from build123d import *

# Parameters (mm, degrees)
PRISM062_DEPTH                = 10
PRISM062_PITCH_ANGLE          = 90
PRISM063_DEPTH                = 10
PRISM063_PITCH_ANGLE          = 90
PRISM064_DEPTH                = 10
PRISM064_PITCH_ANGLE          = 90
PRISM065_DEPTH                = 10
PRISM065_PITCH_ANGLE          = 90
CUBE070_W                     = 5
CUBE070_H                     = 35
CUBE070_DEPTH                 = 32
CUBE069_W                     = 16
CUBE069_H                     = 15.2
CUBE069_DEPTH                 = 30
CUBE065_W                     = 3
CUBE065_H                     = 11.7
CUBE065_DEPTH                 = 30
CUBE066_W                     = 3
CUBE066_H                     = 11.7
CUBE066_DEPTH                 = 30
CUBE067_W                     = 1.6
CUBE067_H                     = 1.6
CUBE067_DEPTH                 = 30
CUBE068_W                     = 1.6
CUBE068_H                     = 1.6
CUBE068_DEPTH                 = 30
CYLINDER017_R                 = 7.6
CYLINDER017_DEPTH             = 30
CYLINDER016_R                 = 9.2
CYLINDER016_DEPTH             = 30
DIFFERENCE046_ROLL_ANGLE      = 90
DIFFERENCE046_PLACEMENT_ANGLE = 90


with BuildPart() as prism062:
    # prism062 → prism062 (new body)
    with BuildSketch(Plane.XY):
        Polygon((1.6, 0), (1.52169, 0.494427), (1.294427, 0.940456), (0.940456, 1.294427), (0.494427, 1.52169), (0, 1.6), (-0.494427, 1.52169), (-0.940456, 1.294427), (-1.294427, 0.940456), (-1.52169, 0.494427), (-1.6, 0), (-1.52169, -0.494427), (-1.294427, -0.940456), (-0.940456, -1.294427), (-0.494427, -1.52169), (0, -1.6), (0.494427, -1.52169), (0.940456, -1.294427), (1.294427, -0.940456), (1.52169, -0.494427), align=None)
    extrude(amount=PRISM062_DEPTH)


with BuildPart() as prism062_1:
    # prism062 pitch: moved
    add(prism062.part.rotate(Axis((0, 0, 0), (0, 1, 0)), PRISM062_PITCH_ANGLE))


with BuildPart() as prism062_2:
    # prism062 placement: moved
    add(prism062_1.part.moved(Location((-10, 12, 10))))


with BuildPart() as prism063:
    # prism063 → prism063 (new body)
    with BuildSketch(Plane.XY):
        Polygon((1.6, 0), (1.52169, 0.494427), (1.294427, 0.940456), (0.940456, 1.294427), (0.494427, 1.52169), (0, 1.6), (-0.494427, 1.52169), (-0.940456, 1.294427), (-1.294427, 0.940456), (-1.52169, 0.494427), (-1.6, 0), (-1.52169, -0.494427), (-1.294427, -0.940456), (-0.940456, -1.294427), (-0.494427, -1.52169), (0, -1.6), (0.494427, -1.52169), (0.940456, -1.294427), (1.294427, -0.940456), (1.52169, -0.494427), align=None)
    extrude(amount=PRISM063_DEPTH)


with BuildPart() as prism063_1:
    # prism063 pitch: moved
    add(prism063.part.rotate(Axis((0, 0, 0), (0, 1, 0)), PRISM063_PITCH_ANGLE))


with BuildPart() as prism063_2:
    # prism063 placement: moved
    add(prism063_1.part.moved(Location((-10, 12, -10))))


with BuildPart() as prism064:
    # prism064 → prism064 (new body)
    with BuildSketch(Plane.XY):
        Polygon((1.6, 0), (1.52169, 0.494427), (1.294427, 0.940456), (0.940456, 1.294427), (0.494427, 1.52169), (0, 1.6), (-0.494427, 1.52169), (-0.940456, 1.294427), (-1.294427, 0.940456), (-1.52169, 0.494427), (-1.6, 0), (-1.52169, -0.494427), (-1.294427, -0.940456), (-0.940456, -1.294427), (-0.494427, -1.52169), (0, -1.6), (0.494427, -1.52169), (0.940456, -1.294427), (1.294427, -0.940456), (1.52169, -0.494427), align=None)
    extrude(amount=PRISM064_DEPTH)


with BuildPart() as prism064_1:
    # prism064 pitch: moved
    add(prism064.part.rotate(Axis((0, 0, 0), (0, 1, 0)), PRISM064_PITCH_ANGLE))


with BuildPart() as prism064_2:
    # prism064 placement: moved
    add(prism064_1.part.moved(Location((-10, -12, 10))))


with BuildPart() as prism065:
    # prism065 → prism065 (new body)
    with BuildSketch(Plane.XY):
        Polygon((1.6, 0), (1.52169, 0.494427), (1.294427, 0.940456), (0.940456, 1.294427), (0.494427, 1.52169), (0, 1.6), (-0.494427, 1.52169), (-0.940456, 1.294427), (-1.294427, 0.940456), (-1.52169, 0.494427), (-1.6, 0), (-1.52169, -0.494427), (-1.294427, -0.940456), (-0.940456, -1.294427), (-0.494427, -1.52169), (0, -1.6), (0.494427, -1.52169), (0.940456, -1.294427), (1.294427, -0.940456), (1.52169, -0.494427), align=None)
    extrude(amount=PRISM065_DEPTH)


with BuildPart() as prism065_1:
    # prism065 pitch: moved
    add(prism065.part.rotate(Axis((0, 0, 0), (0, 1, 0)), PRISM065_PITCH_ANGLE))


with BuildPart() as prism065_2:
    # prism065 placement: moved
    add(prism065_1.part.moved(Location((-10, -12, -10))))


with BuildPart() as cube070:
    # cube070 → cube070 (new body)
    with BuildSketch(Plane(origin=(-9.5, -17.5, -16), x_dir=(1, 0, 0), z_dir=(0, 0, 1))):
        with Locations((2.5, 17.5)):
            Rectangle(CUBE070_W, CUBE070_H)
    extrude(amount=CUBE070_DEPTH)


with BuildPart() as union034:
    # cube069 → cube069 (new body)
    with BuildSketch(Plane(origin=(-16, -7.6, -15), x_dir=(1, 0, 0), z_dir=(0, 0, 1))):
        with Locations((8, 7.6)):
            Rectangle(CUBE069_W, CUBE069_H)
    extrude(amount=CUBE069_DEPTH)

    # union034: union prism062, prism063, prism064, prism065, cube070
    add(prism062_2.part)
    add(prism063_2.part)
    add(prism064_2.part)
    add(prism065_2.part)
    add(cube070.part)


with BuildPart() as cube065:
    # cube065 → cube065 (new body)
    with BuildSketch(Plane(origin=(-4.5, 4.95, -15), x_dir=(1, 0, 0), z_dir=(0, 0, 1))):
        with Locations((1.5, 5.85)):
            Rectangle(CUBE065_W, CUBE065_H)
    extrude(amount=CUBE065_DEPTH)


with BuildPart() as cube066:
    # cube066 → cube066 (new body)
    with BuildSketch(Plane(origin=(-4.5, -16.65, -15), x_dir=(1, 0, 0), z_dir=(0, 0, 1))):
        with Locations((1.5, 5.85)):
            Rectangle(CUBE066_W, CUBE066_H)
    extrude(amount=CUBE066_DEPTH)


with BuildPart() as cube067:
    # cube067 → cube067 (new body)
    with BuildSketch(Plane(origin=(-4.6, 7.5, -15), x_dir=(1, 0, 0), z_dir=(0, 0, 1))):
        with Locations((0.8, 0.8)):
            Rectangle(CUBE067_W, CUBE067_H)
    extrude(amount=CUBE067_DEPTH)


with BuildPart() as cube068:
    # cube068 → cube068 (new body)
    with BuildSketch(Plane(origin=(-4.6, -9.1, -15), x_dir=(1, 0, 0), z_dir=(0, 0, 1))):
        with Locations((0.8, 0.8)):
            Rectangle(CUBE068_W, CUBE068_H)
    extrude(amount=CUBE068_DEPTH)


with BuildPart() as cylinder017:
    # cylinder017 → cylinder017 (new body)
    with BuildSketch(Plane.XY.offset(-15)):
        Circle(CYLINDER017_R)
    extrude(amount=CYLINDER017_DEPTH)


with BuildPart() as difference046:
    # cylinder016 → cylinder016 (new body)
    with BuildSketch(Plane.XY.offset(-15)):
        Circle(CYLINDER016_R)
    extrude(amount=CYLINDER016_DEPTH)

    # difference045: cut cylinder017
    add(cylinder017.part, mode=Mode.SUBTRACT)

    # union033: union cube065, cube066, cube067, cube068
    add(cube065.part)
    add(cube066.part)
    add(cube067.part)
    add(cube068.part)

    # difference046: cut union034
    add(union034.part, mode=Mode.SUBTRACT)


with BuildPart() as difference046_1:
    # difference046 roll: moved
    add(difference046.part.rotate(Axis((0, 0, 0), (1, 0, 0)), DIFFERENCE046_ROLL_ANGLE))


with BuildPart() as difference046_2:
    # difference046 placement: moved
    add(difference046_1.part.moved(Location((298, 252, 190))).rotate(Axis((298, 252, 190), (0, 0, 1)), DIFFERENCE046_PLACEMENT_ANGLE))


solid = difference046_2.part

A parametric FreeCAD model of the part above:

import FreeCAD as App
import Part
import Sketcher
Q = App.Units.Quantity

doc = App.newDocument("Part")
params = doc.addObject("Spreadsheet::Sheet", "Params")
for row, (alias, value) in enumerate([
    ("pad1_length", "10 mm"),
    ("pad2_length", "10 mm"),
    ("pad3_length", "10 mm"),
    ("pad4_length", "10 mm"),
    ("sketch5_width", "5 mm"),
    ("sketch5_height", "35 mm"),
    ("pad5_length", "32 mm"),
    ("sketch6_width", "16 mm"),
    ("sketch6_height", "15.2 mm"),
    ("pad6_length", "30 mm"),
    ("sketch7_width", "3 mm"),
    ("sketch7_height", "11.7 mm"),
    ("pad7_length", "30 mm"),
    ("sketch8_width", "3 mm"),
    ("sketch8_height", "11.7 mm"),
    ("pad8_length", "30 mm"),
    ("sketch9_width", "1.6 mm"),
    ("pad9_length", "30 mm"),
    ("sketch10_width", "1.6 mm"),
    ("pad10_length", "30 mm"),
    ("sketch11_diameter", "15.2 mm"),
    ("pad11_length", "30 mm"),
    ("sketch12_diameter", "18.4 mm"),
    ("pad12_length", "30 mm"),
], start=1):
    params.set(f"A{row}", alias)
    params.set(f"B{row}", "=" + value)
    params.setAlias(f"B{row}", alias)

body = doc.addObject("PartDesign::Body", "Body")

# Sketch on XY plane
sketch1 = body.newObject("Sketcher::SketchObject", "Sketch")
sketch1.AttachmentSupport = (doc.getObject("XY_Plane"), [""])
sketch1.MapMode = "FlatFace"
sketch1.addGeometry(Part.LineSegment(App.Vector(1.6, 0, 0), App.Vector(1.5, 0.5, 0)), False)
sketch1.addGeometry(Part.LineSegment(App.Vector(1.5, 0.5, 0), App.Vector(1.3, 0.9, 0)), False)
sketch1.addGeometry(Part.LineSegment(App.Vector(1.3, 0.9, 0), App.Vector(0.9, 1.3, 0)), False)
sketch1.addGeometry(Part.LineSegment(App.Vector(0.9, 1.3, 0), App.Vector(0.5, 1.5, 0)), False)
sketch1.addGeometry(Part.LineSegment(App.Vector(0.5, 1.5, 0), App.Vector(0, 1.6, 0)), False)
sketch1.addGeometry(Part.LineSegment(App.Vector(0, 1.6, 0), App.Vector(-0.5, 1.5, 0)), False)
sketch1.addGeometry(Part.LineSegment(App.Vector(-0.5, 1.5, 0), App.Vector(-0.9, 1.3, 0)), False)
sketch1.addGeometry(Part.LineSegment(App.Vector(-0.9, 1.3, 0), App.Vector(-1.3, 0.9, 0)), False)
sketch1.addGeometry(Part.LineSegment(App.Vector(-1.3, 0.9, 0), App.Vector(-1.5, 0.5, 0)), False)
sketch1.addGeometry(Part.LineSegment(App.Vector(-1.5, 0.5, 0), App.Vector(-1.6, 0, 0)), False)
sketch1.addGeometry(Part.LineSegment(App.Vector(-1.6, 0, 0), App.Vector(-1.5, -0.5, 0)), False)
sketch1.addGeometry(Part.LineSegment(App.Vector(-1.5, -0.5, 0), App.Vector(-1.3, -0.9, 0)), False)
sketch1.addGeometry(Part.LineSegment(App.Vector(-1.3, -0.9, 0), App.Vector(-0.9, -1.3, 0)), False)
sketch1.addGeometry(Part.LineSegment(App.Vector(-0.9, -1.3, 0), App.Vector(-0.5, -1.5, 0)), False)
sketch1.addGeometry(Part.LineSegment(App.Vector(-0.5, -1.5, 0), App.Vector(0, -1.6, 0)), False)
sketch1.addGeometry(Part.LineSegment(App.Vector(0, -1.6, 0), App.Vector(0.5, -1.5, 0)), False)
sketch1.addGeometry(Part.LineSegment(App.Vector(0.5, -1.5, 0), App.Vector(0.9, -1.3, 0)), False)
sketch1.addGeometry(Part.LineSegment(App.Vector(0.9, -1.3, 0), App.Vector(1.3, -0.9, 0)), False)
sketch1.addGeometry(Part.LineSegment(App.Vector(1.3, -0.9, 0), App.Vector(1.5, -0.5, 0)), False)
sketch1.addGeometry(Part.LineSegment(App.Vector(1.5, -0.5, 0), App.Vector(1.6, 0, 0)), False)
sketch1.addConstraint(Sketcher.Constraint("Coincident", 0, 2, 1, 1))
sketch1.addConstraint(Sketcher.Constraint("Coincident", 1, 2, 2, 1))
sketch1.addConstraint(Sketcher.Constraint("Coincident", 2, 2, 3, 1))
sketch1.addConstraint(Sketcher.Constraint("Coincident", 3, 2, 4, 1))
sketch1.addConstraint(Sketcher.Constraint("Coincident", 4, 2, 5, 1))
sketch1.addConstraint(Sketcher.Constraint("Coincident", 5, 2, 6, 1))
sketch1.addConstraint(Sketcher.Constraint("Coincident", 6, 2, 7, 1))
sketch1.addConstraint(Sketcher.Constraint("Coincident", 7, 2, 8, 1))
sketch1.addConstraint(Sketcher.Constraint("Coincident", 8, 2, 9, 1))
sketch1.addConstraint(Sketcher.Constraint("Coincident", 9, 2, 10, 1))
sketch1.addConstraint(Sketcher.Constraint("Coincident", 10, 2, 11, 1))
sketch1.addConstraint(Sketcher.Constraint("Coincident", 11, 2, 12, 1))
sketch1.addConstraint(Sketcher.Constraint("Coincident", 12, 2, 13, 1))
sketch1.addConstraint(Sketcher.Constraint("Coincident", 13, 2, 14, 1))
sketch1.addConstraint(Sketcher.Constraint("Coincident", 14, 2, 15, 1))
sketch1.addConstraint(Sketcher.Constraint("Coincident", 15, 2, 16, 1))
sketch1.addConstraint(Sketcher.Constraint("Coincident", 16, 2, 17, 1))
sketch1.addConstraint(Sketcher.Constraint("Coincident", 17, 2, 18, 1))
sketch1.addConstraint(Sketcher.Constraint("Coincident", 18, 2, 19, 1))
sketch1.addConstraint(Sketcher.Constraint("Coincident", 19, 2, 0, 1))
sketch1.addConstraint(Sketcher.Constraint("Symmetric", 0, 2, 10, 2, -1, 1))
sketch1.addConstraint(Sketcher.Constraint("Symmetric", 1, 2, 11, 2, -1, 1))
sketch1.addConstraint(Sketcher.Constraint("Symmetric", 2, 2, 12, 2, -1, 1))
sketch1.addConstraint(Sketcher.Constraint("Symmetric", 3, 2, 13, 2, -1, 1))
sketch1.addConstraint(Sketcher.Constraint("Symmetric", 4, 2, 14, 2, -1, 1))
sketch1.addConstraint(Sketcher.Constraint("Symmetric", 5, 2, 15, 2, -1, 1))
sketch1.addConstraint(Sketcher.Constraint("Symmetric", 6, 2, 16, 2, -1, 1))
sketch1.addConstraint(Sketcher.Constraint("Symmetric", 7, 2, 17, 2, -1, 1))
sketch1.addConstraint(Sketcher.Constraint("Symmetric", 8, 2, 18, 2, -1, 1))
sketch1.addConstraint(Sketcher.Constraint("Symmetric", 9, 2, 19, 2, -1, 1))
sketch1.addConstraint(Sketcher.Constraint("Symmetric", 3, 2, 5, 2, -2))
sketch1.addConstraint(Sketcher.Constraint("Symmetric", 2, 2, 6, 2, -2))
sketch1.addConstraint(Sketcher.Constraint("Symmetric", 1, 2, 7, 2, -2))
sketch1.addConstraint(Sketcher.Constraint("Symmetric", 0, 2, 8, 2, -2))
sketch1.addConstraint(Sketcher.Constraint("PointOnObject", 4, 2, -2))
sketch1.addConstraint(Sketcher.Constraint("PointOnObject", 9, 2, -1))
sketch1.addConstraint(Sketcher.Constraint("Perpendicular", 0, 5))
sketch1.addConstraint(Sketcher.Constraint("Perpendicular", 1, 6))
sketch1.addConstraint(Sketcher.Constraint("Perpendicular", 2, 7))
sketch1.addConstraint(Sketcher.Constraint("Equal", 0, 1))
sketch1.addConstraint(Sketcher.Constraint("Equal", 1, 2))
sketch1.addConstraint(Sketcher.Constraint("Equal", 2, 3))
sketch1.addConstraint(Sketcher.Constraint("Equal", 3, 4))
sketch1.addConstraint(Sketcher.Constraint("Angle", 1, Q("116.999987 deg")))
sketch1.addConstraint(Sketcher.Constraint("DistanceY", -1, 1, 4, 2, Q("1.6 mm")))
sketch1.addConstraint(Sketcher.Constraint("DistanceY", 0, 2, 2, 2, Q("0.8 mm")))
pad1 = body.newObject("PartDesign::Pad", "Pad")
pad1.Profile = sketch1
pad1.setExpression("Length", "Params.pad1_length")
body2 = doc.addObject("PartDesign::Body", "Body001")
doc.recompute()

body.Placement = App.Placement(App.Vector(0, 0, 0), App.Rotation(App.Vector(0, 1, 0), 90))
boolean = body2.newObject("PartDesign::Boolean", "Boolean")
boolean.Type = "Fuse"
boolean.addObjects([body])
body3 = doc.addObject("PartDesign::Body", "Body002")
doc.recompute()

body2.Placement = App.Placement(App.Vector(-10, 12, 10), App.Rotation(App.Vector(0, 0, 1), 0))
boolean2 = body3.newObject("PartDesign::Boolean", "Boolean001")
boolean2.Type = "Fuse"
boolean2.addObjects([body2])
body4 = doc.addObject("PartDesign::Body", "Body003")

# Sketch on XY plane
sketch2 = body4.newObject("Sketcher::SketchObject", "Sketch001")
sketch2.AttachmentSupport = (doc.getObject("XY_Plane003"), [""])
sketch2.MapMode = "FlatFace"
sketch2.addGeometry(Part.LineSegment(App.Vector(1.6, 0, 0), App.Vector(1.5, 0.5, 0)), False)
sketch2.addGeometry(Part.LineSegment(App.Vector(1.5, 0.5, 0), App.Vector(1.3, 0.9, 0)), False)
sketch2.addGeometry(Part.LineSegment(App.Vector(1.3, 0.9, 0), App.Vector(0.9, 1.3, 0)), False)
sketch2.addGeometry(Part.LineSegment(App.Vector(0.9, 1.3, 0), App.Vector(0.5, 1.5, 0)), False)
sketch2.addGeometry(Part.LineSegment(App.Vector(0.5, 1.5, 0), App.Vector(0, 1.6, 0)), False)
sketch2.addGeometry(Part.LineSegment(App.Vector(0, 1.6, 0), App.Vector(-0.5, 1.5, 0)), False)
sketch2.addGeometry(Part.LineSegment(App.Vector(-0.5, 1.5, 0), App.Vector(-0.9, 1.3, 0)), False)
sketch2.addGeometry(Part.LineSegment(App.Vector(-0.9, 1.3, 0), App.Vector(-1.3, 0.9, 0)), False)
sketch2.addGeometry(Part.LineSegment(App.Vector(-1.3, 0.9, 0), App.Vector(-1.5, 0.5, 0)), False)
sketch2.addGeometry(Part.LineSegment(App.Vector(-1.5, 0.5, 0), App.Vector(-1.6, 0, 0)), False)
sketch2.addGeometry(Part.LineSegment(App.Vector(-1.6, 0, 0), App.Vector(-1.5, -0.5, 0)), False)
sketch2.addGeometry(Part.LineSegment(App.Vector(-1.5, -0.5, 0), App.Vector(-1.3, -0.9, 0)), False)
sketch2.addGeometry(Part.LineSegment(App.Vector(-1.3, -0.9, 0), App.Vector(-0.9, -1.3, 0)), False)
sketch2.addGeometry(Part.LineSegment(App.Vector(-0.9, -1.3, 0), App.Vector(-0.5, -1.5, 0)), False)
sketch2.addGeometry(Part.LineSegment(App.Vector(-0.5, -1.5, 0), App.Vector(0, -1.6, 0)), False)
sketch2.addGeometry(Part.LineSegment(App.Vector(0, -1.6, 0), App.Vector(0.5, -1.5, 0)), False)
sketch2.addGeometry(Part.LineSegment(App.Vector(0.5, -1.5, 0), App.Vector(0.9, -1.3, 0)), False)
sketch2.addGeometry(Part.LineSegment(App.Vector(0.9, -1.3, 0), App.Vector(1.3, -0.9, 0)), False)
sketch2.addGeometry(Part.LineSegment(App.Vector(1.3, -0.9, 0), App.Vector(1.5, -0.5, 0)), False)
sketch2.addGeometry(Part.LineSegment(App.Vector(1.5, -0.5, 0), App.Vector(1.6, 0, 0)), False)
sketch2.addConstraint(Sketcher.Constraint("Coincident", 0, 2, 1, 1))
sketch2.addConstraint(Sketcher.Constraint("Coincident", 1, 2, 2, 1))
sketch2.addConstraint(Sketcher.Constraint("Coincident", 2, 2, 3, 1))
sketch2.addConstraint(Sketcher.Constraint("Coincident", 3, 2, 4, 1))
sketch2.addConstraint(Sketcher.Constraint("Coincident", 4, 2, 5, 1))
sketch2.addConstraint(Sketcher.Constraint("Coincident", 5, 2, 6, 1))
sketch2.addConstraint(Sketcher.Constraint("Coincident", 6, 2, 7, 1))
sketch2.addConstraint(Sketcher.Constraint("Coincident", 7, 2, 8, 1))
sketch2.addConstraint(Sketcher.Constraint("Coincident", 8, 2, 9, 1))
sketch2.addConstraint(Sketcher.Constraint("Coincident", 9, 2, 10, 1))
sketch2.addConstraint(Sketcher.Constraint("Coincident", 10, 2, 11, 1))
sketch2.addConstraint(Sketcher.Constraint("Coincident", 11, 2, 12, 1))
sketch2.addConstraint(Sketcher.Constraint("Coincident", 12, 2, 13, 1))
sketch2.addConstraint(Sketcher.Constraint("Coincident", 13, 2, 14, 1))
sketch2.addConstraint(Sketcher.Constraint("Coincident", 14, 2, 15, 1))
sketch2.addConstraint(Sketcher.Constraint("Coincident", 15, 2, 16, 1))
sketch2.addConstraint(Sketcher.Constraint("Coincident", 16, 2, 17, 1))
sketch2.addConstraint(Sketcher.Constraint("Coincident", 17, 2, 18, 1))
sketch2.addConstraint(Sketcher.Constraint("Coincident", 18, 2, 19, 1))
sketch2.addConstraint(Sketcher.Constraint("Coincident", 19, 2, 0, 1))
sketch2.addConstraint(Sketcher.Constraint("Symmetric", 0, 2, 10, 2, -1, 1))
sketch2.addConstraint(Sketcher.Constraint("Symmetric", 1, 2, 11, 2, -1, 1))
sketch2.addConstraint(Sketcher.Constraint("Symmetric", 2, 2, 12, 2, -1, 1))
sketch2.addConstraint(Sketcher.Constraint("Symmetric", 3, 2, 13, 2, -1, 1))
sketch2.addConstraint(Sketcher.Constraint("Symmetric", 4, 2, 14, 2, -1, 1))
sketch2.addConstraint(Sketcher.Constraint("Symmetric", 5, 2, 15, 2, -1, 1))
sketch2.addConstraint(Sketcher.Constraint("Symmetric", 6, 2, 16, 2, -1, 1))
sketch2.addConstraint(Sketcher.Constraint("Symmetric", 7, 2, 17, 2, -1, 1))
sketch2.addConstraint(Sketcher.Constraint("Symmetric", 8, 2, 18, 2, -1, 1))
sketch2.addConstraint(Sketcher.Constraint("Symmetric", 9, 2, 19, 2, -1, 1))
sketch2.addConstraint(Sketcher.Constraint("Symmetric", 3, 2, 5, 2, -2))
sketch2.addConstraint(Sketcher.Constraint("Symmetric", 2, 2, 6, 2, -2))
sketch2.addConstraint(Sketcher.Constraint("Symmetric", 1, 2, 7, 2, -2))
sketch2.addConstraint(Sketcher.Constraint("Symmetric", 0, 2, 8, 2, -2))
sketch2.addConstraint(Sketcher.Constraint("PointOnObject", 4, 2, -2))
sketch2.addConstraint(Sketcher.Constraint("PointOnObject", 9, 2, -1))
sketch2.addConstraint(Sketcher.Constraint("Perpendicular", 0, 5))
sketch2.addConstraint(Sketcher.Constraint("Perpendicular", 1, 6))
sketch2.addConstraint(Sketcher.Constraint("Perpendicular", 2, 7))
sketch2.addConstraint(Sketcher.Constraint("Equal", 0, 1))
sketch2.addConstraint(Sketcher.Constraint("Equal", 1, 2))
sketch2.addConstraint(Sketcher.Constraint("Equal", 2, 3))
sketch2.addConstraint(Sketcher.Constraint("Equal", 3, 4))
sketch2.addConstraint(Sketcher.Constraint("Angle", 1, Q("116.999987 deg")))
sketch2.addConstraint(Sketcher.Constraint("DistanceY", -1, 1, 4, 2, Q("1.6 mm")))
sketch2.addConstraint(Sketcher.Constraint("DistanceY", 0, 2, 2, 2, Q("0.8 mm")))
pad2 = body4.newObject("PartDesign::Pad", "Pad001")
pad2.Profile = sketch2
pad2.setExpression("Length", "Params.pad2_length")
body5 = doc.addObject("PartDesign::Body", "Body004")
doc.recompute()

body4.Placement = App.Placement(App.Vector(0, 0, 0), App.Rotation(App.Vector(0, 1, 0), 90))
boolean3 = body5.newObject("PartDesign::Boolean", "Boolean002")
boolean3.Type = "Fuse"
boolean3.addObjects([body4])
body6 = doc.addObject("PartDesign::Body", "Body005")
doc.recompute()

body5.Placement = App.Placement(App.Vector(-10, 12, -10), App.Rotation(App.Vector(0, 0, 1), 0))
boolean4 = body6.newObject("PartDesign::Boolean", "Boolean003")
boolean4.Type = "Fuse"
boolean4.addObjects([body5])
body7 = doc.addObject("PartDesign::Body", "Body006")

# Sketch on XY plane
sketch3 = body7.newObject("Sketcher::SketchObject", "Sketch002")
sketch3.AttachmentSupport = (doc.getObject("XY_Plane006"), [""])
sketch3.MapMode = "FlatFace"
sketch3.addGeometry(Part.LineSegment(App.Vector(1.6, 0, 0), App.Vector(1.5, 0.5, 0)), False)
sketch3.addGeometry(Part.LineSegment(App.Vector(1.5, 0.5, 0), App.Vector(1.3, 0.9, 0)), False)
sketch3.addGeometry(Part.LineSegment(App.Vector(1.3, 0.9, 0), App.Vector(0.9, 1.3, 0)), False)
sketch3.addGeometry(Part.LineSegment(App.Vector(0.9, 1.3, 0), App.Vector(0.5, 1.5, 0)), False)
sketch3.addGeometry(Part.LineSegment(App.Vector(0.5, 1.5, 0), App.Vector(0, 1.6, 0)), False)
sketch3.addGeometry(Part.LineSegment(App.Vector(0, 1.6, 0), App.Vector(-0.5, 1.5, 0)), False)
sketch3.addGeometry(Part.LineSegment(App.Vector(-0.5, 1.5, 0), App.Vector(-0.9, 1.3, 0)), False)
sketch3.addGeometry(Part.LineSegment(App.Vector(-0.9, 1.3, 0), App.Vector(-1.3, 0.9, 0)), False)
sketch3.addGeometry(Part.LineSegment(App.Vector(-1.3, 0.9, 0), App.Vector(-1.5, 0.5, 0)), False)
sketch3.addGeometry(Part.LineSegment(App.Vector(-1.5, 0.5, 0), App.Vector(-1.6, 0, 0)), False)
sketch3.addGeometry(Part.LineSegment(App.Vector(-1.6, 0, 0), App.Vector(-1.5, -0.5, 0)), False)
sketch3.addGeometry(Part.LineSegment(App.Vector(-1.5, -0.5, 0), App.Vector(-1.3, -0.9, 0)), False)
sketch3.addGeometry(Part.LineSegment(App.Vector(-1.3, -0.9, 0), App.Vector(-0.9, -1.3, 0)), False)
sketch3.addGeometry(Part.LineSegment(App.Vector(-0.9, -1.3, 0), App.Vector(-0.5, -1.5, 0)), False)
sketch3.addGeometry(Part.LineSegment(App.Vector(-0.5, -1.5, 0), App.Vector(0, -1.6, 0)), False)
sketch3.addGeometry(Part.LineSegment(App.Vector(0, -1.6, 0), App.Vector(0.5, -1.5, 0)), False)
sketch3.addGeometry(Part.LineSegment(App.Vector(0.5, -1.5, 0), App.Vector(0.9, -1.3, 0)), False)
sketch3.addGeometry(Part.LineSegment(App.Vector(0.9, -1.3, 0), App.Vector(1.3, -0.9, 0)), False)
sketch3.addGeometry(Part.LineSegment(App.Vector(1.3, -0.9, 0), App.Vector(1.5, -0.5, 0)), False)
sketch3.addGeometry(Part.LineSegment(App.Vector(1.5, -0.5, 0), App.Vector(1.6, 0, 0)), False)
sketch3.addConstraint(Sketcher.Constraint("Coincident", 0, 2, 1, 1))
sketch3.addConstraint(Sketcher.Constraint("Coincident", 1, 2, 2, 1))
sketch3.addConstraint(Sketcher.Constraint("Coincident", 2, 2, 3, 1))
sketch3.addConstraint(Sketcher.Constraint("Coincident", 3, 2, 4, 1))
sketch3.addConstraint(Sketcher.Constraint("Coincident", 4, 2, 5, 1))
sketch3.addConstraint(Sketcher.Constraint("Coincident", 5, 2, 6, 1))
sketch3.addConstraint(Sketcher.Constraint("Coincident", 6, 2, 7, 1))
sketch3.addConstraint(Sketcher.Constraint("Coincident", 7, 2, 8, 1))
sketch3.addConstraint(Sketcher.Constraint("Coincident", 8, 2, 9, 1))
sketch3.addConstraint(Sketcher.Constraint("Coincident", 9, 2, 10, 1))
sketch3.addConstraint(Sketcher.Constraint("Coincident", 10, 2, 11, 1))
sketch3.addConstraint(Sketcher.Constraint("Coincident", 11, 2, 12, 1))
sketch3.addConstraint(Sketcher.Constraint("Coincident", 12, 2, 13, 1))
sketch3.addConstraint(Sketcher.Constraint("Coincident", 13, 2, 14, 1))
sketch3.addConstraint(Sketcher.Constraint("Coincident", 14, 2, 15, 1))
sketch3.addConstraint(Sketcher.Constraint("Coincident", 15, 2, 16, 1))
sketch3.addConstraint(Sketcher.Constraint("Coincident", 16, 2, 17, 1))
sketch3.addConstraint(Sketcher.Constraint("Coincident", 17, 2, 18, 1))
sketch3.addConstraint(Sketcher.Constraint("Coincident", 18, 2, 19, 1))
sketch3.addConstraint(Sketcher.Constraint("Coincident", 19, 2, 0, 1))
sketch3.addConstraint(Sketcher.Constraint("Symmetric", 0, 2, 10, 2, -1, 1))
sketch3.addConstraint(Sketcher.Constraint("Symmetric", 1, 2, 11, 2, -1, 1))
sketch3.addConstraint(Sketcher.Constraint("Symmetric", 2, 2, 12, 2, -1, 1))
sketch3.addConstraint(Sketcher.Constraint("Symmetric", 3, 2, 13, 2, -1, 1))
sketch3.addConstraint(Sketcher.Constraint("Symmetric", 4, 2, 14, 2, -1, 1))
sketch3.addConstraint(Sketcher.Constraint("Symmetric", 5, 2, 15, 2, -1, 1))
sketch3.addConstraint(Sketcher.Constraint("Symmetric", 6, 2, 16, 2, -1, 1))
sketch3.addConstraint(Sketcher.Constraint("Symmetric", 7, 2, 17, 2, -1, 1))
sketch3.addConstraint(Sketcher.Constraint("Symmetric", 8, 2, 18, 2, -1, 1))
sketch3.addConstraint(Sketcher.Constraint("Symmetric", 9, 2, 19, 2, -1, 1))
sketch3.addConstraint(Sketcher.Constraint("Symmetric", 3, 2, 5, 2, -2))
sketch3.addConstraint(Sketcher.Constraint("Symmetric", 2, 2, 6, 2, -2))
sketch3.addConstraint(Sketcher.Constraint("Symmetric", 1, 2, 7, 2, -2))
sketch3.addConstraint(Sketcher.Constraint("Symmetric", 0, 2, 8, 2, -2))
sketch3.addConstraint(Sketcher.Constraint("PointOnObject", 4, 2, -2))
sketch3.addConstraint(Sketcher.Constraint("PointOnObject", 9, 2, -1))
sketch3.addConstraint(Sketcher.Constraint("Perpendicular", 0, 5))
sketch3.addConstraint(Sketcher.Constraint("Perpendicular", 1, 6))
sketch3.addConstraint(Sketcher.Constraint("Perpendicular", 2, 7))
sketch3.addConstraint(Sketcher.Constraint("Equal", 0, 1))
sketch3.addConstraint(Sketcher.Constraint("Equal", 1, 2))
sketch3.addConstraint(Sketcher.Constraint("Equal", 2, 3))
sketch3.addConstraint(Sketcher.Constraint("Equal", 3, 4))
sketch3.addConstraint(Sketcher.Constraint("Angle", 1, Q("116.999987 deg")))
sketch3.addConstraint(Sketcher.Constraint("DistanceY", -1, 1, 4, 2, Q("1.6 mm")))
sketch3.addConstraint(Sketcher.Constraint("DistanceY", 0, 2, 2, 2, Q("0.8 mm")))
pad3 = body7.newObject("PartDesign::Pad", "Pad002")
pad3.Profile = sketch3
pad3.setExpression("Length", "Params.pad3_length")
body8 = doc.addObject("PartDesign::Body", "Body007")
doc.recompute()

body7.Placement = App.Placement(App.Vector(0, 0, 0), App.Rotation(App.Vector(0, 1, 0), 90))
boolean5 = body8.newObject("PartDesign::Boolean", "Boolean004")
boolean5.Type = "Fuse"
boolean5.addObjects([body7])
body9 = doc.addObject("PartDesign::Body", "Body008")
doc.recompute()

body8.Placement = App.Placement(App.Vector(-10, -12, 10), App.Rotation(App.Vector(0, 0, 1), 0))
boolean6 = body9.newObject("PartDesign::Boolean", "Boolean005")
boolean6.Type = "Fuse"
boolean6.addObjects([body8])
body10 = doc.addObject("PartDesign::Body", "Body009")

# Sketch on XY plane
sketch4 = body10.newObject("Sketcher::SketchObject", "Sketch003")
sketch4.AttachmentSupport = (doc.getObject("XY_Plane009"), [""])
sketch4.MapMode = "FlatFace"
sketch4.addGeometry(Part.LineSegment(App.Vector(1.6, 0, 0), App.Vector(1.5, 0.5, 0)), False)
sketch4.addGeometry(Part.LineSegment(App.Vector(1.5, 0.5, 0), App.Vector(1.3, 0.9, 0)), False)
sketch4.addGeometry(Part.LineSegment(App.Vector(1.3, 0.9, 0), App.Vector(0.9, 1.3, 0)), False)
sketch4.addGeometry(Part.LineSegment(App.Vector(0.9, 1.3, 0), App.Vector(0.5, 1.5, 0)), False)
sketch4.addGeometry(Part.LineSegment(App.Vector(0.5, 1.5, 0), App.Vector(0, 1.6, 0)), False)
sketch4.addGeometry(Part.LineSegment(App.Vector(0, 1.6, 0), App.Vector(-0.5, 1.5, 0)), False)
sketch4.addGeometry(Part.LineSegment(App.Vector(-0.5, 1.5, 0), App.Vector(-0.9, 1.3, 0)), False)
sketch4.addGeometry(Part.LineSegment(App.Vector(-0.9, 1.3, 0), App.Vector(-1.3, 0.9, 0)), False)
sketch4.addGeometry(Part.LineSegment(App.Vector(-1.3, 0.9, 0), App.Vector(-1.5, 0.5, 0)), False)
sketch4.addGeometry(Part.LineSegment(App.Vector(-1.5, 0.5, 0), App.Vector(-1.6, 0, 0)), False)
sketch4.addGeometry(Part.LineSegment(App.Vector(-1.6, 0, 0), App.Vector(-1.5, -0.5, 0)), False)
sketch4.addGeometry(Part.LineSegment(App.Vector(-1.5, -0.5, 0), App.Vector(-1.3, -0.9, 0)), False)
sketch4.addGeometry(Part.LineSegment(App.Vector(-1.3, -0.9, 0), App.Vector(-0.9, -1.3, 0)), False)
sketch4.addGeometry(Part.LineSegment(App.Vector(-0.9, -1.3, 0), App.Vector(-0.5, -1.5, 0)), False)
sketch4.addGeometry(Part.LineSegment(App.Vector(-0.5, -1.5, 0), App.Vector(0, -1.6, 0)), False)
sketch4.addGeometry(Part.LineSegment(App.Vector(0, -1.6, 0), App.Vector(0.5, -1.5, 0)), False)
sketch4.addGeometry(Part.LineSegment(App.Vector(0.5, -1.5, 0), App.Vector(0.9, -1.3, 0)), False)
sketch4.addGeometry(Part.LineSegment(App.Vector(0.9, -1.3, 0), App.Vector(1.3, -0.9, 0)), False)
sketch4.addGeometry(Part.LineSegment(App.Vector(1.3, -0.9, 0), App.Vector(1.5, -0.5, 0)), False)
sketch4.addGeometry(Part.LineSegment(App.Vector(1.5, -0.5, 0), App.Vector(1.6, 0, 0)), False)
sketch4.addConstraint(Sketcher.Constraint("Coincident", 0, 2, 1, 1))
sketch4.addConstraint(Sketcher.Constraint("Coincident", 1, 2, 2, 1))
sketch4.addConstraint(Sketcher.Constraint("Coincident", 2, 2, 3, 1))
sketch4.addConstraint(Sketcher.Constraint("Coincident", 3, 2, 4, 1))
sketch4.addConstraint(Sketcher.Constraint("Coincident", 4, 2, 5, 1))
sketch4.addConstraint(Sketcher.Constraint("Coincident", 5, 2, 6, 1))
sketch4.addConstraint(Sketcher.Constraint("Coincident", 6, 2, 7, 1))
sketch4.addConstraint(Sketcher.Constraint("Coincident", 7, 2, 8, 1))
sketch4.addConstraint(Sketcher.Constraint("Coincident", 8, 2, 9, 1))
sketch4.addConstraint(Sketcher.Constraint("Coincident", 9, 2, 10, 1))
sketch4.addConstraint(Sketcher.Constraint("Coincident", 10, 2, 11, 1))
sketch4.addConstraint(Sketcher.Constraint("Coincident", 11, 2, 12, 1))
sketch4.addConstraint(Sketcher.Constraint("Coincident", 12, 2, 13, 1))
sketch4.addConstraint(Sketcher.Constraint("Coincident", 13, 2, 14, 1))
sketch4.addConstraint(Sketcher.Constraint("Coincident", 14, 2, 15, 1))
sketch4.addConstraint(Sketcher.Constraint("Coincident", 15, 2, 16, 1))
sketch4.addConstraint(Sketcher.Constraint("Coincident", 16, 2, 17, 1))
sketch4.addConstraint(Sketcher.Constraint("Coincident", 17, 2, 18, 1))
sketch4.addConstraint(Sketcher.Constraint("Coincident", 18, 2, 19, 1))
sketch4.addConstraint(Sketcher.Constraint("Coincident", 19, 2, 0, 1))
sketch4.addConstraint(Sketcher.Constraint("Symmetric", 0, 2, 10, 2, -1, 1))
sketch4.addConstraint(Sketcher.Constraint("Symmetric", 1, 2, 11, 2, -1, 1))
sketch4.addConstraint(Sketcher.Constraint("Symmetric", 2, 2, 12, 2, -1, 1))
sketch4.addConstraint(Sketcher.Constraint("Symmetric", 3, 2, 13, 2, -1, 1))
sketch4.addConstraint(Sketcher.Constraint("Symmetric", 4, 2, 14, 2, -1, 1))
sketch4.addConstraint(Sketcher.Constraint("Symmetric", 5, 2, 15, 2, -1, 1))
sketch4.addConstraint(Sketcher.Constraint("Symmetric", 6, 2, 16, 2, -1, 1))
sketch4.addConstraint(Sketcher.Constraint("Symmetric", 7, 2, 17, 2, -1, 1))
sketch4.addConstraint(Sketcher.Constraint("Symmetric", 8, 2, 18, 2, -1, 1))
sketch4.addConstraint(Sketcher.Constraint("Symmetric", 9, 2, 19, 2, -1, 1))
sketch4.addConstraint(Sketcher.Constraint("Symmetric", 3, 2, 5, 2, -2))
sketch4.addConstraint(Sketcher.Constraint("Symmetric", 2, 2, 6, 2, -2))
sketch4.addConstraint(Sketcher.Constraint("Symmetric", 1, 2, 7, 2, -2))
sketch4.addConstraint(Sketcher.Constraint("Symmetric", 0, 2, 8, 2, -2))
sketch4.addConstraint(Sketcher.Constraint("PointOnObject", 4, 2, -2))
sketch4.addConstraint(Sketcher.Constraint("PointOnObject", 9, 2, -1))
sketch4.addConstraint(Sketcher.Constraint("Perpendicular", 0, 5))
sketch4.addConstraint(Sketcher.Constraint("Perpendicular", 1, 6))
sketch4.addConstraint(Sketcher.Constraint("Perpendicular", 2, 7))
sketch4.addConstraint(Sketcher.Constraint("Equal", 0, 1))
sketch4.addConstraint(Sketcher.Constraint("Equal", 1, 2))
sketch4.addConstraint(Sketcher.Constraint("Equal", 2, 3))
sketch4.addConstraint(Sketcher.Constraint("Equal", 3, 4))
sketch4.addConstraint(Sketcher.Constraint("Angle", 1, Q("116.999987 deg")))
sketch4.addConstraint(Sketcher.Constraint("DistanceY", -1, 1, 4, 2, Q("1.6 mm")))
sketch4.addConstraint(Sketcher.Constraint("DistanceY", 0, 2, 2, 2, Q("0.8 mm")))
pad4 = body10.newObject("PartDesign::Pad", "Pad003")
pad4.Profile = sketch4
pad4.setExpression("Length", "Params.pad4_length")
body11 = doc.addObject("PartDesign::Body", "Body010")
doc.recompute()

body10.Placement = App.Placement(App.Vector(0, 0, 0), App.Rotation(App.Vector(0, 1, 0), 90))
boolean7 = body11.newObject("PartDesign::Boolean", "Boolean006")
boolean7.Type = "Fuse"
boolean7.addObjects([body10])
body12 = doc.addObject("PartDesign::Body", "Body011")
doc.recompute()

body11.Placement = App.Placement(App.Vector(-10, -12, -10), App.Rotation(App.Vector(0, 0, 1), 0))
boolean8 = body12.newObject("PartDesign::Boolean", "Boolean007")
boolean8.Type = "Fuse"
boolean8.addObjects([body11])
body13 = doc.addObject("PartDesign::Body", "Body012")

# Sketch on XY plane
sketch5 = body13.newObject("Sketcher::SketchObject", "Sketch004")
sketch5.AttachmentSupport = (doc.getObject("XY_Plane012"), [""])
sketch5.MapMode = "FlatFace"
sketch5.AttachmentOffset = App.Placement(App.Vector(0, 0, -16), App.Rotation())
sketch5.addGeometry(Part.LineSegment(App.Vector(-10, 18, 0), App.Vector(-10, -18, 0)), False)
sketch5.addGeometry(Part.LineSegment(App.Vector(-10, -18, 0), App.Vector(-4, -18, 0)), False)
sketch5.addGeometry(Part.LineSegment(App.Vector(-4, -18, 0), App.Vector(-4, 18, 0)), False)
sketch5.addGeometry(Part.LineSegment(App.Vector(-4, 18, 0), App.Vector(-10, 18, 0)), False)
sketch5.addConstraint(Sketcher.Constraint("Coincident", 0, 2, 1, 1))
sketch5.addConstraint(Sketcher.Constraint("Coincident", 1, 2, 2, 1))
sketch5.addConstraint(Sketcher.Constraint("Coincident", 2, 2, 3, 1))
sketch5.addConstraint(Sketcher.Constraint("Coincident", 3, 2, 0, 1))
sketch5.addConstraint(Sketcher.Constraint("Vertical", 0))
sketch5.addConstraint(Sketcher.Constraint("Horizontal", 1))
sketch5.addConstraint(Sketcher.Constraint("Vertical", 2))
sketch5.addConstraint(Sketcher.Constraint("Horizontal", 3))
sketch5.addConstraint(Sketcher.Constraint("DistanceX", 1, 1, 1, 2, Q("5 mm")))
sketch5.addConstraint(Sketcher.Constraint("DistanceY", 0, 2, 0, 1, Q("35 mm")))
sketch5.addConstraint(Sketcher.Constraint("DistanceX", 0, 2, -1, 1, Q("9.5 mm")))
sketch5.addConstraint(Sketcher.Constraint("DistanceY", 0, 2, -1, 1, Q("17.5 mm")))
sketch5.setExpression("Constraints[8]", "Params.sketch5_width")
sketch5.setExpression("Constraints[9]", "Params.sketch5_height")
pad5 = body13.newObject("PartDesign::Pad", "Pad004")
pad5.Profile = sketch5
pad5.setExpression("Length", "Params.pad5_length")
body14 = doc.addObject("PartDesign::Body", "Body013")
body14.AllowCompound = True

# Sketch on XY plane
sketch6 = body14.newObject("Sketcher::SketchObject", "Sketch005")
sketch6.AttachmentSupport = (doc.getObject("XY_Plane013"), [""])
sketch6.MapMode = "FlatFace"
sketch6.AttachmentOffset = App.Placement(App.Vector(0, 0, -15), App.Rotation())
sketch6.addGeometry(Part.LineSegment(App.Vector(-16, 8, 0), App.Vector(-16, -8, 0)), False)
sketch6.addGeometry(Part.LineSegment(App.Vector(-16, -8, 0), App.Vector(0, -8, 0)), False)
sketch6.addGeometry(Part.LineSegment(App.Vector(0, -8, 0), App.Vector(0, 8, 0)), False)
sketch6.addGeometry(Part.LineSegment(App.Vector(0, 8, 0), App.Vector(-16, 8, 0)), False)
sketch6.addConstraint(Sketcher.Constraint("Coincident", 0, 2, 1, 1))
sketch6.addConstraint(Sketcher.Constraint("Coincident", 1, 2, 2, 1))
sketch6.addConstraint(Sketcher.Constraint("Coincident", 2, 2, 3, 1))
sketch6.addConstraint(Sketcher.Constraint("Coincident", 3, 2, 0, 1))
sketch6.addConstraint(Sketcher.Constraint("Vertical", 0))
sketch6.addConstraint(Sketcher.Constraint("Horizontal", 1))
sketch6.addConstraint(Sketcher.Constraint("Vertical", 2))
sketch6.addConstraint(Sketcher.Constraint("Horizontal", 3))
sketch6.addConstraint(Sketcher.Constraint("Symmetric", 1, 2, 2, 2, -1, 1))
sketch6.addConstraint(Sketcher.Constraint("DistanceX", 1, 1, 1, 2, Q("16 mm")))
sketch6.addConstraint(Sketcher.Constraint("DistanceY", 0, 2, 0, 1, Q("15.2 mm")))
sketch6.setExpression("Constraints[9]", "Params.sketch6_width")
sketch6.setExpression("Constraints[10]", "Params.sketch6_height")
pad6 = body14.newObject("PartDesign::Pad", "Pad005")
pad6.Profile = sketch6
pad6.setExpression("Length", "Params.pad6_length")
doc.recompute()

boolean9 = body14.newObject("PartDesign::Boolean", "Boolean008")
boolean9.Type = "Fuse"
boolean9.addObjects([body3])
doc.recompute()

boolean10 = body14.newObject("PartDesign::Boolean", "Boolean009")
boolean10.Type = "Fuse"
boolean10.addObjects([body6])
doc.recompute()

boolean11 = body14.newObject("PartDesign::Boolean", "Boolean010")
boolean11.Type = "Fuse"
boolean11.addObjects([body9])
doc.recompute()

boolean12 = body14.newObject("PartDesign::Boolean", "Boolean011")
boolean12.Type = "Fuse"
boolean12.addObjects([body12])
doc.recompute()

boolean13 = body14.newObject("PartDesign::Boolean", "Boolean012")
boolean13.Type = "Fuse"
boolean13.addObjects([body13])
body15 = doc.addObject("PartDesign::Body", "Body014")

# Sketch on XY plane
sketch7 = body15.newObject("Sketcher::SketchObject", "Sketch006")
sketch7.AttachmentSupport = (doc.getObject("XY_Plane014"), [""])
sketch7.MapMode = "FlatFace"
sketch7.AttachmentOffset = App.Placement(App.Vector(0, 0, -15), App.Rotation())
sketch7.addGeometry(Part.LineSegment(App.Vector(-4.5, 16.6, 0), App.Vector(-4.5, 5, 0)), False)
sketch7.addGeometry(Part.LineSegment(App.Vector(-4.5, 5, 0), App.Vector(-1.5, 5, 0)), False)
sketch7.addGeometry(Part.LineSegment(App.Vector(-1.5, 5, 0), App.Vector(-1.5, 16.6, 0)), False)
sketch7.addGeometry(Part.LineSegment(App.Vector(-1.5, 16.6, 0), App.Vector(-4.5, 16.6, 0)), False)
sketch7.addConstraint(Sketcher.Constraint("Coincident", 0, 2, 1, 1))
sketch7.addConstraint(Sketcher.Constraint("Coincident", 1, 2, 2, 1))
sketch7.addConstraint(Sketcher.Constraint("Coincident", 2, 2, 3, 1))
sketch7.addConstraint(Sketcher.Constraint("Coincident", 3, 2, 0, 1))
sketch7.addConstraint(Sketcher.Constraint("Vertical", 0))
sketch7.addConstraint(Sketcher.Constraint("Horizontal", 1))
sketch7.addConstraint(Sketcher.Constraint("Vertical", 2))
sketch7.addConstraint(Sketcher.Constraint("Horizontal", 3))
sketch7.addConstraint(Sketcher.Constraint("DistanceX", 1, 1, 1, 2, Q("3 mm")))
sketch7.addConstraint(Sketcher.Constraint("DistanceY", 0, 2, 0, 1, Q("11.7 mm")))
sketch7.addConstraint(Sketcher.Constraint("DistanceX", 0, 2, -1, 1, Q("4.5 mm")))
sketch7.addConstraint(Sketcher.Constraint("DistanceY", -1, 1, 0, 2, Q("4.95 mm")))
sketch7.setExpression("Constraints[8]", "Params.sketch7_width")
sketch7.setExpression("Constraints[9]", "Params.sketch7_height")
pad7 = body15.newObject("PartDesign::Pad", "Pad006")
pad7.Profile = sketch7
pad7.setExpression("Length", "Params.pad7_length")
body16 = doc.addObject("PartDesign::Body", "Body015")

# Sketch on XY plane
sketch8 = body16.newObject("Sketcher::SketchObject", "Sketch007")
sketch8.AttachmentSupport = (doc.getObject("XY_Plane015"), [""])
sketch8.MapMode = "FlatFace"
sketch8.AttachmentOffset = App.Placement(App.Vector(0, 0, -15), App.Rotation())
sketch8.addGeometry(Part.LineSegment(App.Vector(-4.5, -5, 0), App.Vector(-4.5, -16.6, 0)), False)
sketch8.addGeometry(Part.LineSegment(App.Vector(-4.5, -16.6, 0), App.Vector(-1.5, -16.6, 0)), False)
sketch8.addGeometry(Part.LineSegment(App.Vector(-1.5, -16.6, 0), App.Vector(-1.5, -5, 0)), False)
sketch8.addGeometry(Part.LineSegment(App.Vector(-1.5, -5, 0), App.Vector(-4.5, -5, 0)), False)
sketch8.addConstraint(Sketcher.Constraint("Coincident", 0, 2, 1, 1))
sketch8.addConstraint(Sketcher.Constraint("Coincident", 1, 2, 2, 1))
sketch8.addConstraint(Sketcher.Constraint("Coincident", 2, 2, 3, 1))
sketch8.addConstraint(Sketcher.Constraint("Coincident", 3, 2, 0, 1))
sketch8.addConstraint(Sketcher.Constraint("Vertical", 0))
sketch8.addConstraint(Sketcher.Constraint("Horizontal", 1))
sketch8.addConstraint(Sketcher.Constraint("Vertical", 2))
sketch8.addConstraint(Sketcher.Constraint("Horizontal", 3))
sketch8.addConstraint(Sketcher.Constraint("DistanceX", 1, 1, 1, 2, Q("3 mm")))
sketch8.addConstraint(Sketcher.Constraint("DistanceY", 0, 2, 0, 1, Q("11.7 mm")))
sketch8.addConstraint(Sketcher.Constraint("DistanceX", 0, 2, -1, 1, Q("4.5 mm")))
sketch8.addConstraint(Sketcher.Constraint("DistanceY", 0, 2, -1, 1, Q("16.65 mm")))
sketch8.setExpression("Constraints[8]", "Params.sketch8_width")
sketch8.setExpression("Constraints[9]", "Params.sketch8_height")
pad8 = body16.newObject("PartDesign::Pad", "Pad007")
pad8.Profile = sketch8
pad8.setExpression("Length", "Params.pad8_length")
body17 = doc.addObject("PartDesign::Body", "Body016")

# Sketch on XY plane
sketch9 = body17.newObject("Sketcher::SketchObject", "Sketch008")
sketch9.AttachmentSupport = (doc.getObject("XY_Plane016"), [""])
sketch9.MapMode = "FlatFace"
sketch9.AttachmentOffset = App.Placement(App.Vector(0, 0, -15), App.Rotation())
sketch9.addGeometry(Part.LineSegment(App.Vector(-4.6, 9.1, 0), App.Vector(-4.6, 7.5, 0)), False)
sketch9.addGeometry(Part.LineSegment(App.Vector(-4.6, 7.5, 0), App.Vector(-3, 7.5, 0)), False)
sketch9.addGeometry(Part.LineSegment(App.Vector(-3, 7.5, 0), App.Vector(-3, 9.1, 0)), False)
sketch9.addGeometry(Part.LineSegment(App.Vector(-3, 9.1, 0), App.Vector(-4.6, 9.1, 0)), False)
sketch9.addConstraint(Sketcher.Constraint("Coincident", 0, 2, 1, 1))
sketch9.addConstraint(Sketcher.Constraint("Coincident", 1, 2, 2, 1))
sketch9.addConstraint(Sketcher.Constraint("Coincident", 2, 2, 3, 1))
sketch9.addConstraint(Sketcher.Constraint("Coincident", 3, 2, 0, 1))
sketch9.addConstraint(Sketcher.Constraint("Vertical", 0))
sketch9.addConstraint(Sketcher.Constraint("Horizontal", 1))
sketch9.addConstraint(Sketcher.Constraint("Vertical", 2))
sketch9.addConstraint(Sketcher.Constraint("Horizontal", 3))
sketch9.addConstraint(Sketcher.Constraint("Equal", 3, 0))
sketch9.addConstraint(Sketcher.Constraint("DistanceX", 1, 1, 1, 2, Q("1.6 mm")))
sketch9.addConstraint(Sketcher.Constraint("DistanceX", 1, 2, -1, 1, Q("3 mm")))
sketch9.addConstraint(Sketcher.Constraint("DistanceY", -1, 1, 0, 2, Q("7.5 mm")))
sketch9.setExpression("Constraints[9]", "Params.sketch9_width")
pad9 = body17.newObject("PartDesign::Pad", "Pad008")
pad9.Profile = sketch9
pad9.setExpression("Length", "Params.pad9_length")
body18 = doc.addObject("PartDesign::Body", "Body017")

# Sketch on XY plane
sketch10 = body18.newObject("Sketcher::SketchObject", "Sketch009")
sketch10.AttachmentSupport = (doc.getObject("XY_Plane017"), [""])
sketch10.MapMode = "FlatFace"
sketch10.AttachmentOffset = App.Placement(App.Vector(0, 0, -15), App.Rotation())
sketch10.addGeometry(Part.LineSegment(App.Vector(-4.6, -7.5, 0), App.Vector(-4.6, -9.1, 0)), False)
sketch10.addGeometry(Part.LineSegment(App.Vector(-4.6, -9.1, 0), App.Vector(-3, -9.1, 0)), False)
sketch10.addGeometry(Part.LineSegment(App.Vector(-3, -9.1, 0), App.Vector(-3, -7.5, 0)), False)
sketch10.addGeometry(Part.LineSegment(App.Vector(-3, -7.5, 0), App.Vector(-4.6, -7.5, 0)), False)
sketch10.addConstraint(Sketcher.Constraint("Coincident", 0, 2, 1, 1))
sketch10.addConstraint(Sketcher.Constraint("Coincident", 1, 2, 2, 1))
sketch10.addConstraint(Sketcher.Constraint("Coincident", 2, 2, 3, 1))
sketch10.addConstraint(Sketcher.Constraint("Coincident", 3, 2, 0, 1))
sketch10.addConstraint(Sketcher.Constraint("Vertical", 0))
sketch10.addConstraint(Sketcher.Constraint("Horizontal", 1))
sketch10.addConstraint(Sketcher.Constraint("Vertical", 2))
sketch10.addConstraint(Sketcher.Constraint("Horizontal", 3))
sketch10.addConstraint(Sketcher.Constraint("Equal", 3, 0))
sketch10.addConstraint(Sketcher.Constraint("DistanceX", 1, 1, 1, 2, Q("1.6 mm")))
sketch10.addConstraint(Sketcher.Constraint("DistanceX", 1, 2, -1, 1, Q("3 mm")))
sketch10.addConstraint(Sketcher.Constraint("DistanceY", 0, 2, -1, 1, Q("9.1 mm")))
sketch10.setExpression("Constraints[9]", "Params.sketch10_width")
pad10 = body18.newObject("PartDesign::Pad", "Pad009")
pad10.Profile = sketch10
pad10.setExpression("Length", "Params.pad10_length")
body19 = doc.addObject("PartDesign::Body", "Body018")

# Sketch on XY plane
sketch11 = body19.newObject("Sketcher::SketchObject", "Sketch010")
sketch11.AttachmentSupport = (doc.getObject("XY_Plane018"), [""])
sketch11.MapMode = "FlatFace"
sketch11.AttachmentOffset = App.Placement(App.Vector(0, 0, -15), App.Rotation())
sketch11.addGeometry(Part.Circle(App.Vector(0, 0, 0), App.Vector(0, 0, 1), 8), False)
sketch11.addConstraint(Sketcher.Constraint("Coincident", 0, 3, -1, 1))
sketch11.addConstraint(Sketcher.Constraint("Diameter", 0, Q("15.2 mm")))
sketch11.setExpression("Constraints[1]", "Params.sketch11_diameter")
pad11 = body19.newObject("PartDesign::Pad", "Pad010")
pad11.Profile = sketch11
pad11.setExpression("Length", "Params.pad11_length")
body20 = doc.addObject("PartDesign::Body", "Body019")

# Sketch on XY plane
sketch12 = body20.newObject("Sketcher::SketchObject", "Sketch011")
sketch12.AttachmentSupport = (doc.getObject("XY_Plane019"), [""])
sketch12.MapMode = "FlatFace"
sketch12.AttachmentOffset = App.Placement(App.Vector(0, 0, -15), App.Rotation())
sketch12.addGeometry(Part.Circle(App.Vector(0, 0, 0), App.Vector(0, 0, 1), 9), False)
sketch12.addConstraint(Sketcher.Constraint("Coincident", 0, 3, -1, 1))
sketch12.addConstraint(Sketcher.Constraint("Diameter", 0, Q("18.4 mm")))
sketch12.setExpression("Constraints[1]", "Params.sketch12_diameter")
pad12 = body20.newObject("PartDesign::Pad", "Pad011")
pad12.Profile = sketch12
pad12.setExpression("Length", "Params.pad12_length")
doc.recompute()

boolean14 = body20.newObject("PartDesign::Boolean", "Boolean013")
boolean14.Type = "Cut"
boolean14.addObjects([body19])
doc.recompute()

boolean15 = body20.newObject("PartDesign::Boolean", "Boolean014")
boolean15.Type = "Fuse"
boolean15.addObjects([body15])
doc.recompute()

boolean16 = body20.newObject("PartDesign::Boolean", "Boolean015")
boolean16.Type = "Fuse"
boolean16.addObjects([body16])
doc.recompute()

boolean17 = body20.newObject("PartDesign::Boolean", "Boolean016")
boolean17.Type = "Fuse"
boolean17.addObjects([body17])
doc.recompute()

boolean18 = body20.newObject("PartDesign::Boolean", "Boolean017")
boolean18.Type = "Fuse"
boolean18.addObjects([body18])
doc.recompute()

boolean19 = body20.newObject("PartDesign::Boolean", "Boolean018")
boolean19.Type = "Cut"
boolean19.addObjects([body14])
body21 = doc.addObject("PartDesign::Body", "Body020")
doc.recompute()

body20.Placement = App.Placement(App.Vector(0, 0, 0), App.Rotation(App.Vector(1, 0, 0), 90))
boolean20 = body21.newObject("PartDesign::Boolean", "Boolean019")
boolean20.Type = "Fuse"
boolean20.addObjects([body20])
body22 = doc.addObject("PartDesign::Body", "Body021")
doc.recompute()

body21.Placement = App.Placement(App.Vector(298, 252, 190), App.Rotation(App.Vector(0, 0, 1), 90))
boolean21 = body22.newObject("PartDesign::Boolean", "Boolean020")
boolean21.Type = "Fuse"
boolean21.addObjects([body21])

doc.recompute()
